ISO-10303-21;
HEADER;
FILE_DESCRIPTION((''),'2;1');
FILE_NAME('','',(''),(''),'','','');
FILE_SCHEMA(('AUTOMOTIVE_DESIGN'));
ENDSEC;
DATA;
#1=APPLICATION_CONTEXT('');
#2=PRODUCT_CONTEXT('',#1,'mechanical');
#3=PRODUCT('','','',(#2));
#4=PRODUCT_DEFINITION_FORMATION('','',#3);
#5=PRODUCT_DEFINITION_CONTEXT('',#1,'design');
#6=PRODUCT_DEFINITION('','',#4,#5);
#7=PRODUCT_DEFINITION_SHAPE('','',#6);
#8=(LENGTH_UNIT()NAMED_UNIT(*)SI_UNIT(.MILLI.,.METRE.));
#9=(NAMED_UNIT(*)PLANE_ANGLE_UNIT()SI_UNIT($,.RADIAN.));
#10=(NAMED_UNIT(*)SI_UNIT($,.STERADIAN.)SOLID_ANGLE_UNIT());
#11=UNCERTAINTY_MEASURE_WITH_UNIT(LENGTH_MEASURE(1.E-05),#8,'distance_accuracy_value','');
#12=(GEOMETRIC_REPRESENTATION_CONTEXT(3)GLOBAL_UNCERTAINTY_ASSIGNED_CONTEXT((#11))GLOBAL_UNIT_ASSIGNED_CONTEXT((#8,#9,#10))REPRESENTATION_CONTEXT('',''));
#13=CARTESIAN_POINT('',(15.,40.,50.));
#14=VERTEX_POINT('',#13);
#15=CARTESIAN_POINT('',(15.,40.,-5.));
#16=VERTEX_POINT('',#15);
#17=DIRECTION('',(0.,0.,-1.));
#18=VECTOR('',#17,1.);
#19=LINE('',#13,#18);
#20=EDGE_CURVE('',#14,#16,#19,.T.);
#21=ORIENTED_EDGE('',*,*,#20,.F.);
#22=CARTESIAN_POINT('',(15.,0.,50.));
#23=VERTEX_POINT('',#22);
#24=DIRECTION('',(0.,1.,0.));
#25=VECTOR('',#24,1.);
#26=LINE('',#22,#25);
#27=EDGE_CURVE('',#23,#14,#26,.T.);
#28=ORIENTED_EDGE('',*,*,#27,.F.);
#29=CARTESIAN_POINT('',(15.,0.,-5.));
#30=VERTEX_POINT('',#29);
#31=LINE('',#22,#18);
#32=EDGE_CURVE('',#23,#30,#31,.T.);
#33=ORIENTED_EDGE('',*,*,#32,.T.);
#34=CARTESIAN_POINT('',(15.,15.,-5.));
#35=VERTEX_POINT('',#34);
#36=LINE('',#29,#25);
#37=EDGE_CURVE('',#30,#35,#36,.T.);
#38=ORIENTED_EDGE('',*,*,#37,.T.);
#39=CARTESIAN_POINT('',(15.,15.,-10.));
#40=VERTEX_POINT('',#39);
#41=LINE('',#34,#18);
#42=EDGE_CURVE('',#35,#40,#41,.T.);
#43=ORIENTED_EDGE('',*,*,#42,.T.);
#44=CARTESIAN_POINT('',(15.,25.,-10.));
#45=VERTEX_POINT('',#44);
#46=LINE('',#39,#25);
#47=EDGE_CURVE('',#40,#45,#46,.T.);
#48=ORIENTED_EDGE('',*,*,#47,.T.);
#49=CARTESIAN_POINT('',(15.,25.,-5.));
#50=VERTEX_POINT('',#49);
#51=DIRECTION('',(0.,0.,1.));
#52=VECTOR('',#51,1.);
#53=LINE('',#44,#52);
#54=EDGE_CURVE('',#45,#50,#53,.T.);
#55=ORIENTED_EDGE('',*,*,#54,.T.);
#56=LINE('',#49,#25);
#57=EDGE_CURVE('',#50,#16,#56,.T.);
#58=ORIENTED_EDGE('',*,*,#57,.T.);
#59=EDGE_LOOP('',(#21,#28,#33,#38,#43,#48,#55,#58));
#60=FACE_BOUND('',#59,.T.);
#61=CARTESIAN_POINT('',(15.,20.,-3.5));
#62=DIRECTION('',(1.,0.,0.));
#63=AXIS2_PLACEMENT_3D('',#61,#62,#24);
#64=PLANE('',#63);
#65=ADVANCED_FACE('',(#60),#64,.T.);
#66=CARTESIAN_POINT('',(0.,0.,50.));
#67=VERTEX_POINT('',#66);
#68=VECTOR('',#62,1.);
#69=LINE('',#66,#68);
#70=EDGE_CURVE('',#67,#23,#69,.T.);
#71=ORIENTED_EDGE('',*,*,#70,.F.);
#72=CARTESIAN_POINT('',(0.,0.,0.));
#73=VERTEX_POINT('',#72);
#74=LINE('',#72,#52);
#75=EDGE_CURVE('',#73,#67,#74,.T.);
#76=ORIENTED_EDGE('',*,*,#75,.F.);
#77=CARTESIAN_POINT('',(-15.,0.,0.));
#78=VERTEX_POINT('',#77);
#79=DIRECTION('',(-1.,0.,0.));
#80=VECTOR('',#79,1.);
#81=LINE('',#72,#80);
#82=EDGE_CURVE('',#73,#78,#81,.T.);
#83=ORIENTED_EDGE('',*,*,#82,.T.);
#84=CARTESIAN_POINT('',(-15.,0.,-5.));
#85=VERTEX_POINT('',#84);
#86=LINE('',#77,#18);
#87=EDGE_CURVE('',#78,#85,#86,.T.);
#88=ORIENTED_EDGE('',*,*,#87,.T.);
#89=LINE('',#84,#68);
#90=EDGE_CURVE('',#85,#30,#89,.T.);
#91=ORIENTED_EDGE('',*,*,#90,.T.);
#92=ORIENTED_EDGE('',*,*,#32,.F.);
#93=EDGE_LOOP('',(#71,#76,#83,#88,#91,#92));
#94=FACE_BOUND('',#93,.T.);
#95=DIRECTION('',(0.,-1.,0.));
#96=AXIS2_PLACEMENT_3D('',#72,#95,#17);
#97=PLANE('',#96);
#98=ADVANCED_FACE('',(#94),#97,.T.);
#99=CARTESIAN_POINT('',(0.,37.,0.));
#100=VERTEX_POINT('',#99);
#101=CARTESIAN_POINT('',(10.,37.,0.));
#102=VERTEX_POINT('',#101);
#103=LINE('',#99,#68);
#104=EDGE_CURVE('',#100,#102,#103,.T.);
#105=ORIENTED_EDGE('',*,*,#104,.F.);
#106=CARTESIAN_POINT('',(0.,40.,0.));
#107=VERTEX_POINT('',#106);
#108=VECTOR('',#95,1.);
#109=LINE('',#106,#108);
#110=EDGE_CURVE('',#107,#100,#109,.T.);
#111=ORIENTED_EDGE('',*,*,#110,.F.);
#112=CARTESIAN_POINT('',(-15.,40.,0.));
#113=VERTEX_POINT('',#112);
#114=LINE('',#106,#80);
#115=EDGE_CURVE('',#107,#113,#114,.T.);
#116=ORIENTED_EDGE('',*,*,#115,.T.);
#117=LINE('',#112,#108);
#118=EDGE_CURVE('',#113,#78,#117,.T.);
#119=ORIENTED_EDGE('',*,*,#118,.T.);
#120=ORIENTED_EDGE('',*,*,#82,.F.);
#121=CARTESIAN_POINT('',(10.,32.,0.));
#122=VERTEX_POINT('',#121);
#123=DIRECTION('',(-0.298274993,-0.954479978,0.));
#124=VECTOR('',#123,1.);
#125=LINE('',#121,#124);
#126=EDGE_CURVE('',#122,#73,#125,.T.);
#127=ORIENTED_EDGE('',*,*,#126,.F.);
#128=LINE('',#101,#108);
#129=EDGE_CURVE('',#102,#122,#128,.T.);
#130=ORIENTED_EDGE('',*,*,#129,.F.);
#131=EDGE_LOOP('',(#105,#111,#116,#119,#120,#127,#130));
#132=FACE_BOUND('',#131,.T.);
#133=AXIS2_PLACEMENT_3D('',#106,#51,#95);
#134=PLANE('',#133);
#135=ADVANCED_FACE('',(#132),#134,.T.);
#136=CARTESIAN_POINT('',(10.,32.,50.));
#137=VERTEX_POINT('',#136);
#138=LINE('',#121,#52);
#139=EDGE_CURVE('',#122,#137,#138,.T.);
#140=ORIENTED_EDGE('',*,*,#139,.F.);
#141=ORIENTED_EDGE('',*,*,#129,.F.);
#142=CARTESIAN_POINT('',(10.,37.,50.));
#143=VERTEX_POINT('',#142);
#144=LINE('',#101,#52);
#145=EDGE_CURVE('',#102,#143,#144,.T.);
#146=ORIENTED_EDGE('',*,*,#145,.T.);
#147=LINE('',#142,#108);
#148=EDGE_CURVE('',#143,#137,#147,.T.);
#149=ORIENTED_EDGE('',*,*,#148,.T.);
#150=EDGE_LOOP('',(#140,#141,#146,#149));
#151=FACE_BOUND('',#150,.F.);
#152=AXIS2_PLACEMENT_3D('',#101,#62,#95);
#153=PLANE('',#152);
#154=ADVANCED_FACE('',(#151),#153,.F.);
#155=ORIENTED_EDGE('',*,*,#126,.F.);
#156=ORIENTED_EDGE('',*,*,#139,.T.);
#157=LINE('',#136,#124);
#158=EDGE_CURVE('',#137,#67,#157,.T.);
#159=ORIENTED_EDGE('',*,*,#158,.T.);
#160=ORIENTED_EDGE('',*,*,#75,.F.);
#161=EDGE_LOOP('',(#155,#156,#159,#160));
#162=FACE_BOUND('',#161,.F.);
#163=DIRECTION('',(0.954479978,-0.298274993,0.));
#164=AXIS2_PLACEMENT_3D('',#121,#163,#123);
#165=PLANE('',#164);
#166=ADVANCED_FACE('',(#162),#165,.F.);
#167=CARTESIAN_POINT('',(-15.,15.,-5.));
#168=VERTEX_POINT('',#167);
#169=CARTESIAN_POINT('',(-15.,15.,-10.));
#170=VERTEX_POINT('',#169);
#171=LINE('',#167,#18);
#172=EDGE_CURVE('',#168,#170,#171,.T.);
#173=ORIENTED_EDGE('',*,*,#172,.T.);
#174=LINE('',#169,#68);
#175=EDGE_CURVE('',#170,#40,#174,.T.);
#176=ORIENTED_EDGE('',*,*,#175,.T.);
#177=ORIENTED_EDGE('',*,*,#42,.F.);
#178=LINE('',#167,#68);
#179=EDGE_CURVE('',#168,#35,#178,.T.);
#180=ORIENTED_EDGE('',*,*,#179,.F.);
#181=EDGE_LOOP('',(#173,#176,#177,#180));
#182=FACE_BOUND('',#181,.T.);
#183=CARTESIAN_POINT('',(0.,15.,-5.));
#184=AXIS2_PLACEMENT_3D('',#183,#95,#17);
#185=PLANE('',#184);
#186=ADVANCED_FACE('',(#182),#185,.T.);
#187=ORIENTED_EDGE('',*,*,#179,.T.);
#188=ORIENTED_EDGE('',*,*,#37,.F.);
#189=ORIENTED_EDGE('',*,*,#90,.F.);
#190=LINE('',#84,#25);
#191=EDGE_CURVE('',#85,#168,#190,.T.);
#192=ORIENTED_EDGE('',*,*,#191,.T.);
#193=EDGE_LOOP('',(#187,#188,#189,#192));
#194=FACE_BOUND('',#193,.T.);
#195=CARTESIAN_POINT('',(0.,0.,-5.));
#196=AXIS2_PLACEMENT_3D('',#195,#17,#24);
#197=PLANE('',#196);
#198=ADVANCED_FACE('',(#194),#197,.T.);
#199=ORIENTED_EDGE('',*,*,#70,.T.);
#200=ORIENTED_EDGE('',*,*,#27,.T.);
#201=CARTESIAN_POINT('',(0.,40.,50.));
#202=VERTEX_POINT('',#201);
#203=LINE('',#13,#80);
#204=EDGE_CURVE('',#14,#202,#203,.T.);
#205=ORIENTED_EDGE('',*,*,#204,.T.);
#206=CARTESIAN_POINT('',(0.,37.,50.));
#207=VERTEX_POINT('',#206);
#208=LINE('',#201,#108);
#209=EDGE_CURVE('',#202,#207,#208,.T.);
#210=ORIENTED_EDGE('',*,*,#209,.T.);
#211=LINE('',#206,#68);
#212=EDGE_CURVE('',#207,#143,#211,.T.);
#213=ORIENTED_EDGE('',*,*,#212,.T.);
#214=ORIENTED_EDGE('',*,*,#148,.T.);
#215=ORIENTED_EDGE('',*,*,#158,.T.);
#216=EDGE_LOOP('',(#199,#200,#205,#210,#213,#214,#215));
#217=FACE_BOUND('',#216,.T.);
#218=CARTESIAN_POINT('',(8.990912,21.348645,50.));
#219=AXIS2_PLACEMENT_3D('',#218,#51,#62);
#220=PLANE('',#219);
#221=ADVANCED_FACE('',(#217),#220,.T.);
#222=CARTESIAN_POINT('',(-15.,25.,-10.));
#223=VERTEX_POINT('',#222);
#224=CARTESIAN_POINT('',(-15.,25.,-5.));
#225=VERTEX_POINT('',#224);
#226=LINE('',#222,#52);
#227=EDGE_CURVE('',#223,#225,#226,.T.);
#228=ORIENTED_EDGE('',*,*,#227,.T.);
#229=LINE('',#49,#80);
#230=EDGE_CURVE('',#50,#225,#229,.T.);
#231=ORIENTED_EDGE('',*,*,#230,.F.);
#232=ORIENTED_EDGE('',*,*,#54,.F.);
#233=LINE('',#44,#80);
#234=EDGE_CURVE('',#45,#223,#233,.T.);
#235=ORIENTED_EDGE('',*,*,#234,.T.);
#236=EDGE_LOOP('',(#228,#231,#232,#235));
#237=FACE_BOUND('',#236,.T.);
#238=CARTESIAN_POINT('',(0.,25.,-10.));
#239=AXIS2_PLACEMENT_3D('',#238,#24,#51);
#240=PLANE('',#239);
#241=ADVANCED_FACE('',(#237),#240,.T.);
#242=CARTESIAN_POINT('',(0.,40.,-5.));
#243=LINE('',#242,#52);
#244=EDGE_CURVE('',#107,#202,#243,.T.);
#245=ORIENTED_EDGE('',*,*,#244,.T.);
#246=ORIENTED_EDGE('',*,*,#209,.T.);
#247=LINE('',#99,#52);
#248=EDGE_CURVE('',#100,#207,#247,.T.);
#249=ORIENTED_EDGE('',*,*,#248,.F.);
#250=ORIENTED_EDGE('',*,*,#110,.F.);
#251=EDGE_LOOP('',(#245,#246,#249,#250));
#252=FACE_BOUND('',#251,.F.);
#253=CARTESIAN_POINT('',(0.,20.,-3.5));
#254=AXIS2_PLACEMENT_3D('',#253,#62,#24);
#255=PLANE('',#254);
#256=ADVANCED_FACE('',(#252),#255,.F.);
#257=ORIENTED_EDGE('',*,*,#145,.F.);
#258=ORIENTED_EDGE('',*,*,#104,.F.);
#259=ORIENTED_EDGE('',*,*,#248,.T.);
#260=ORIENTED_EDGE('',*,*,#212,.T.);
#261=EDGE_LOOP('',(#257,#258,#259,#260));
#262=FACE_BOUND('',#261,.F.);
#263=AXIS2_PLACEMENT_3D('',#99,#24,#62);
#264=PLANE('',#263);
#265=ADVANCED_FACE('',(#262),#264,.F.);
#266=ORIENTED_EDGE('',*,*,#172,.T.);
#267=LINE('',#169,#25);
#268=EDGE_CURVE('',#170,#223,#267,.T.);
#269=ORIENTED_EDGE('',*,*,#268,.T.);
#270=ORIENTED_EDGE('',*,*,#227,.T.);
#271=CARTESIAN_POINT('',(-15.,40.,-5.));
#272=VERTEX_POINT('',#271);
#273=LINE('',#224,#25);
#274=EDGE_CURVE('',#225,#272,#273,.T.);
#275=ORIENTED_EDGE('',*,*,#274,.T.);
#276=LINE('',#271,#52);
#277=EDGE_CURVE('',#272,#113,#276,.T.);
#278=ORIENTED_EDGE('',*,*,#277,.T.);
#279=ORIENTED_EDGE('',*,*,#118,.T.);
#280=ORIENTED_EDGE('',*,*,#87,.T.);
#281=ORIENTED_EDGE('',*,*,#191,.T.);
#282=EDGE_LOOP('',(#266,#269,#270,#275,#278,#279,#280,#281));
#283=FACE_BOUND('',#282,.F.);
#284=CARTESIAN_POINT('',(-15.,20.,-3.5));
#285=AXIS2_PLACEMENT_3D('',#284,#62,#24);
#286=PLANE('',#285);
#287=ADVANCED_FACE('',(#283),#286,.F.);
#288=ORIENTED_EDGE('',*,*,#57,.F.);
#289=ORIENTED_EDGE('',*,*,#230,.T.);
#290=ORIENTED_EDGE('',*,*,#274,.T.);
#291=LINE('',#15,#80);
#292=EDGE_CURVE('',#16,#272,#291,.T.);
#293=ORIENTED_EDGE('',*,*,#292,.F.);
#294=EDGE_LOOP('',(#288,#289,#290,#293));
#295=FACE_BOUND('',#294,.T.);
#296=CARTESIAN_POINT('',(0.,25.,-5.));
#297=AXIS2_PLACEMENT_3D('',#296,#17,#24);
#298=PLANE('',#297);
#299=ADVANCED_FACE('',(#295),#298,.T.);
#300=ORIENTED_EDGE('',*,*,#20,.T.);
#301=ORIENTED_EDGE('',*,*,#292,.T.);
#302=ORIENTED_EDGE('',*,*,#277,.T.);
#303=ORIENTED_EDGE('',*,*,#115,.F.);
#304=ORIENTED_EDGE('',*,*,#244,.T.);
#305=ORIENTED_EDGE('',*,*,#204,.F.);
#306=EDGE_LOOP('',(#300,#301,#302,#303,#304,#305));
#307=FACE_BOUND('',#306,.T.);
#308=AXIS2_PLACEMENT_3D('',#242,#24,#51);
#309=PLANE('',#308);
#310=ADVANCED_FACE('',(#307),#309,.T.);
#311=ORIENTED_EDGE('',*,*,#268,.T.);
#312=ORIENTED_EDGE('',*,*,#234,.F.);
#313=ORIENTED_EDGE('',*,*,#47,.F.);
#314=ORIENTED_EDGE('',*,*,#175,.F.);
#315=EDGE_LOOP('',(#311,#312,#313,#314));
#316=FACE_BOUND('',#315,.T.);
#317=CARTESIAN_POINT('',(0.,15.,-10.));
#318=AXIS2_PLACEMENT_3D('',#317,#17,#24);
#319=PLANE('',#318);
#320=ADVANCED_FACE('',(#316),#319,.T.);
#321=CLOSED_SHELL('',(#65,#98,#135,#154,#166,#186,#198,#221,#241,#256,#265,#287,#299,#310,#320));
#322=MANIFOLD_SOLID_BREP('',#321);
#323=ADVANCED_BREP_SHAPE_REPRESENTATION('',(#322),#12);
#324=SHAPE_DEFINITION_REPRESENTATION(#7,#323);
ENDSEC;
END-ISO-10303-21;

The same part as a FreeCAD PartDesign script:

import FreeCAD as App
import Part
import Sketcher

V = App.Vector
Q = App.Units.Quantity


def add_polygon(sketch, points):
    """Adds a closed chain of lines whose ends are joined by coincident constraints."""
    first, n = sketch.GeometryCount, len(points)
    for a, b in zip(points, points[1:] + points[:1]):
        sketch.addGeometry(Part.LineSegment(App.Vector(*a, 0), App.Vector(*b, 0)), False)
    for i in range(n):
        sketch.addConstraint(Sketcher.Constraint("Coincident", first + i, 2, first + (i + 1) % n, 1))

doc = App.newDocument("Part")
body = doc.addObject("PartDesign::Body", "Body")

# Sketch on XY plane
sketch1 = doc.addObject("Sketcher::SketchObject", "Sketch")
body.addObject(sketch1)
sketch1.AttachmentSupport = (doc.XY_Plane, [""])
sketch1.MapMode = "FlatFace"
add_polygon(sketch1, [(0, 40), (0, 37), (10, 37), (10, 32), (0, 0), (15, 0), (15, 40)])  # lines 0-6
sketch1.addConstraint([
    Sketcher.Constraint("Vertical", 0),
    Sketcher.Constraint("Horizontal", 1),
    Sketcher.Constraint("Vertical", 2),
    Sketcher.Constraint("Horizontal", 4),
    Sketcher.Constraint("Vertical", 5),
    Sketcher.Constraint("Horizontal", 6),
    Sketcher.Constraint("Coincident", 3, 2, -1, 1),
    Sketcher.Constraint("PointOnObject", 0, 2, -2),
    Sketcher.Constraint("DistanceX", 1, 1, 1, 2, Q("10 mm")),
    Sketcher.Constraint("DistanceX", 4, 1, 4, 2, Q("15 mm")),
    Sketcher.Constraint("DistanceY", 0, 2, 0, 1, Q("3 mm")),
    Sketcher.Constraint("DistanceY", 2, 2, 2, 1, Q("5 mm")),
    Sketcher.Constraint("DistanceY", 5, 1, 5, 2, Q("40 mm")),
])
pad1 = doc.addObject("PartDesign::Pad", "Pad")
body.addObject(pad1)
pad1.Profile = sketch1
pad1.Length = 50

# Sketch on YZ plane
sketch2 = doc.addObject("Sketcher::SketchObject", "Sketch001")
body.addObject(sketch2)
sketch2.AttachmentSupport = (doc.YZ_Plane, [""])
sketch2.MapMode = "FlatFace"
add_polygon(sketch2, [(40, -5), (40, 0), (0, 0), (0, -5), (15, -5), (15, -10), (25, -10), (25, -5)])  # lines 0-7
sketch2.addConstraint([
    Sketcher.Constraint("Vertical", 0),
    Sketcher.Constraint("Horizontal", 1),
    Sketcher.Constraint("Vertical", 2),
    Sketcher.Constraint("Horizontal", 3),
    Sketcher.Constraint("Vertical", 4),
    Sketcher.Constraint("Horizontal", 5),
    Sketcher.Constraint("Vertical", 6),
    Sketcher.Constraint("Horizontal", 7),
    Sketcher.Constraint("Coincident", 1, 2, -1, 1),
    Sketcher.Constraint("Horizontal", 3, 2, 6, 2),
    Sketcher.Constraint("Equal", 3, 7),
    Sketcher.Constraint("Equal", 2, 4),
    Sketcher.Constraint("DistanceX", 1, 2, 1, 1, Q("40 mm")),
    Sketcher.Constraint("DistanceX", 3, 1, 3, 2, Q("15 mm")),
    Sketcher.Constraint("DistanceY", 0, 1, 0, 2, Q("5 mm")),
])
pad2 = doc.addObject("PartDesign::Pad", "Pad001")
body.addObject(pad2)
pad2.Profile = sketch2
pad2.Length = 15

# Sketch on YZ plane
sketch3 = doc.addObject("Sketcher::SketchObject", "Sketch002")
body.addObject(sketch3)
sketch3.AttachmentSupport = (doc.YZ_Plane, [""])
sketch3.MapMode = "FlatFace"
add_polygon(sketch3, [(40, -5), (40, 0), (0, 0), (0, -5), (15, -5), (15, -10), (25, -10), (25, -5)])  # lines 0-7
sketch3.addConstraint([
    Sketcher.Constraint("Vertical", 0),
    Sketcher.Constraint("Horizontal", 1),
    Sketcher.Constraint("Vertical", 2),
    Sketcher.Constraint("Horizontal", 3),
    Sketcher.Constraint("Vertical", 4),
    Sketcher.Constraint("Horizontal", 5),
    Sketcher.Constraint("Vertical", 6),
    Sketcher.Constraint("Horizontal", 7),
    Sketcher.Constraint("Coincident", 1, 2, -1, 1),
    Sketcher.Constraint("Horizontal", 3, 2, 6, 2),
    Sketcher.Constraint("Equal", 3, 7),
    Sketcher.Constraint("Equal", 2, 4),
    Sketcher.Constraint("DistanceX", 1, 2, 1, 1, Q("40 mm")),
    Sketcher.Constraint("DistanceX", 3, 1, 3, 2, Q("15 mm")),
    Sketcher.Constraint("DistanceY", 0, 1, 0, 2, Q("5 mm")),
])
pad3 = doc.addObject("PartDesign::Pad", "Pad002")
body.addObject(pad3)
pad3.Profile = sketch3
pad3.Length = 15
pad3.Reversed = True

doc.recompute()
